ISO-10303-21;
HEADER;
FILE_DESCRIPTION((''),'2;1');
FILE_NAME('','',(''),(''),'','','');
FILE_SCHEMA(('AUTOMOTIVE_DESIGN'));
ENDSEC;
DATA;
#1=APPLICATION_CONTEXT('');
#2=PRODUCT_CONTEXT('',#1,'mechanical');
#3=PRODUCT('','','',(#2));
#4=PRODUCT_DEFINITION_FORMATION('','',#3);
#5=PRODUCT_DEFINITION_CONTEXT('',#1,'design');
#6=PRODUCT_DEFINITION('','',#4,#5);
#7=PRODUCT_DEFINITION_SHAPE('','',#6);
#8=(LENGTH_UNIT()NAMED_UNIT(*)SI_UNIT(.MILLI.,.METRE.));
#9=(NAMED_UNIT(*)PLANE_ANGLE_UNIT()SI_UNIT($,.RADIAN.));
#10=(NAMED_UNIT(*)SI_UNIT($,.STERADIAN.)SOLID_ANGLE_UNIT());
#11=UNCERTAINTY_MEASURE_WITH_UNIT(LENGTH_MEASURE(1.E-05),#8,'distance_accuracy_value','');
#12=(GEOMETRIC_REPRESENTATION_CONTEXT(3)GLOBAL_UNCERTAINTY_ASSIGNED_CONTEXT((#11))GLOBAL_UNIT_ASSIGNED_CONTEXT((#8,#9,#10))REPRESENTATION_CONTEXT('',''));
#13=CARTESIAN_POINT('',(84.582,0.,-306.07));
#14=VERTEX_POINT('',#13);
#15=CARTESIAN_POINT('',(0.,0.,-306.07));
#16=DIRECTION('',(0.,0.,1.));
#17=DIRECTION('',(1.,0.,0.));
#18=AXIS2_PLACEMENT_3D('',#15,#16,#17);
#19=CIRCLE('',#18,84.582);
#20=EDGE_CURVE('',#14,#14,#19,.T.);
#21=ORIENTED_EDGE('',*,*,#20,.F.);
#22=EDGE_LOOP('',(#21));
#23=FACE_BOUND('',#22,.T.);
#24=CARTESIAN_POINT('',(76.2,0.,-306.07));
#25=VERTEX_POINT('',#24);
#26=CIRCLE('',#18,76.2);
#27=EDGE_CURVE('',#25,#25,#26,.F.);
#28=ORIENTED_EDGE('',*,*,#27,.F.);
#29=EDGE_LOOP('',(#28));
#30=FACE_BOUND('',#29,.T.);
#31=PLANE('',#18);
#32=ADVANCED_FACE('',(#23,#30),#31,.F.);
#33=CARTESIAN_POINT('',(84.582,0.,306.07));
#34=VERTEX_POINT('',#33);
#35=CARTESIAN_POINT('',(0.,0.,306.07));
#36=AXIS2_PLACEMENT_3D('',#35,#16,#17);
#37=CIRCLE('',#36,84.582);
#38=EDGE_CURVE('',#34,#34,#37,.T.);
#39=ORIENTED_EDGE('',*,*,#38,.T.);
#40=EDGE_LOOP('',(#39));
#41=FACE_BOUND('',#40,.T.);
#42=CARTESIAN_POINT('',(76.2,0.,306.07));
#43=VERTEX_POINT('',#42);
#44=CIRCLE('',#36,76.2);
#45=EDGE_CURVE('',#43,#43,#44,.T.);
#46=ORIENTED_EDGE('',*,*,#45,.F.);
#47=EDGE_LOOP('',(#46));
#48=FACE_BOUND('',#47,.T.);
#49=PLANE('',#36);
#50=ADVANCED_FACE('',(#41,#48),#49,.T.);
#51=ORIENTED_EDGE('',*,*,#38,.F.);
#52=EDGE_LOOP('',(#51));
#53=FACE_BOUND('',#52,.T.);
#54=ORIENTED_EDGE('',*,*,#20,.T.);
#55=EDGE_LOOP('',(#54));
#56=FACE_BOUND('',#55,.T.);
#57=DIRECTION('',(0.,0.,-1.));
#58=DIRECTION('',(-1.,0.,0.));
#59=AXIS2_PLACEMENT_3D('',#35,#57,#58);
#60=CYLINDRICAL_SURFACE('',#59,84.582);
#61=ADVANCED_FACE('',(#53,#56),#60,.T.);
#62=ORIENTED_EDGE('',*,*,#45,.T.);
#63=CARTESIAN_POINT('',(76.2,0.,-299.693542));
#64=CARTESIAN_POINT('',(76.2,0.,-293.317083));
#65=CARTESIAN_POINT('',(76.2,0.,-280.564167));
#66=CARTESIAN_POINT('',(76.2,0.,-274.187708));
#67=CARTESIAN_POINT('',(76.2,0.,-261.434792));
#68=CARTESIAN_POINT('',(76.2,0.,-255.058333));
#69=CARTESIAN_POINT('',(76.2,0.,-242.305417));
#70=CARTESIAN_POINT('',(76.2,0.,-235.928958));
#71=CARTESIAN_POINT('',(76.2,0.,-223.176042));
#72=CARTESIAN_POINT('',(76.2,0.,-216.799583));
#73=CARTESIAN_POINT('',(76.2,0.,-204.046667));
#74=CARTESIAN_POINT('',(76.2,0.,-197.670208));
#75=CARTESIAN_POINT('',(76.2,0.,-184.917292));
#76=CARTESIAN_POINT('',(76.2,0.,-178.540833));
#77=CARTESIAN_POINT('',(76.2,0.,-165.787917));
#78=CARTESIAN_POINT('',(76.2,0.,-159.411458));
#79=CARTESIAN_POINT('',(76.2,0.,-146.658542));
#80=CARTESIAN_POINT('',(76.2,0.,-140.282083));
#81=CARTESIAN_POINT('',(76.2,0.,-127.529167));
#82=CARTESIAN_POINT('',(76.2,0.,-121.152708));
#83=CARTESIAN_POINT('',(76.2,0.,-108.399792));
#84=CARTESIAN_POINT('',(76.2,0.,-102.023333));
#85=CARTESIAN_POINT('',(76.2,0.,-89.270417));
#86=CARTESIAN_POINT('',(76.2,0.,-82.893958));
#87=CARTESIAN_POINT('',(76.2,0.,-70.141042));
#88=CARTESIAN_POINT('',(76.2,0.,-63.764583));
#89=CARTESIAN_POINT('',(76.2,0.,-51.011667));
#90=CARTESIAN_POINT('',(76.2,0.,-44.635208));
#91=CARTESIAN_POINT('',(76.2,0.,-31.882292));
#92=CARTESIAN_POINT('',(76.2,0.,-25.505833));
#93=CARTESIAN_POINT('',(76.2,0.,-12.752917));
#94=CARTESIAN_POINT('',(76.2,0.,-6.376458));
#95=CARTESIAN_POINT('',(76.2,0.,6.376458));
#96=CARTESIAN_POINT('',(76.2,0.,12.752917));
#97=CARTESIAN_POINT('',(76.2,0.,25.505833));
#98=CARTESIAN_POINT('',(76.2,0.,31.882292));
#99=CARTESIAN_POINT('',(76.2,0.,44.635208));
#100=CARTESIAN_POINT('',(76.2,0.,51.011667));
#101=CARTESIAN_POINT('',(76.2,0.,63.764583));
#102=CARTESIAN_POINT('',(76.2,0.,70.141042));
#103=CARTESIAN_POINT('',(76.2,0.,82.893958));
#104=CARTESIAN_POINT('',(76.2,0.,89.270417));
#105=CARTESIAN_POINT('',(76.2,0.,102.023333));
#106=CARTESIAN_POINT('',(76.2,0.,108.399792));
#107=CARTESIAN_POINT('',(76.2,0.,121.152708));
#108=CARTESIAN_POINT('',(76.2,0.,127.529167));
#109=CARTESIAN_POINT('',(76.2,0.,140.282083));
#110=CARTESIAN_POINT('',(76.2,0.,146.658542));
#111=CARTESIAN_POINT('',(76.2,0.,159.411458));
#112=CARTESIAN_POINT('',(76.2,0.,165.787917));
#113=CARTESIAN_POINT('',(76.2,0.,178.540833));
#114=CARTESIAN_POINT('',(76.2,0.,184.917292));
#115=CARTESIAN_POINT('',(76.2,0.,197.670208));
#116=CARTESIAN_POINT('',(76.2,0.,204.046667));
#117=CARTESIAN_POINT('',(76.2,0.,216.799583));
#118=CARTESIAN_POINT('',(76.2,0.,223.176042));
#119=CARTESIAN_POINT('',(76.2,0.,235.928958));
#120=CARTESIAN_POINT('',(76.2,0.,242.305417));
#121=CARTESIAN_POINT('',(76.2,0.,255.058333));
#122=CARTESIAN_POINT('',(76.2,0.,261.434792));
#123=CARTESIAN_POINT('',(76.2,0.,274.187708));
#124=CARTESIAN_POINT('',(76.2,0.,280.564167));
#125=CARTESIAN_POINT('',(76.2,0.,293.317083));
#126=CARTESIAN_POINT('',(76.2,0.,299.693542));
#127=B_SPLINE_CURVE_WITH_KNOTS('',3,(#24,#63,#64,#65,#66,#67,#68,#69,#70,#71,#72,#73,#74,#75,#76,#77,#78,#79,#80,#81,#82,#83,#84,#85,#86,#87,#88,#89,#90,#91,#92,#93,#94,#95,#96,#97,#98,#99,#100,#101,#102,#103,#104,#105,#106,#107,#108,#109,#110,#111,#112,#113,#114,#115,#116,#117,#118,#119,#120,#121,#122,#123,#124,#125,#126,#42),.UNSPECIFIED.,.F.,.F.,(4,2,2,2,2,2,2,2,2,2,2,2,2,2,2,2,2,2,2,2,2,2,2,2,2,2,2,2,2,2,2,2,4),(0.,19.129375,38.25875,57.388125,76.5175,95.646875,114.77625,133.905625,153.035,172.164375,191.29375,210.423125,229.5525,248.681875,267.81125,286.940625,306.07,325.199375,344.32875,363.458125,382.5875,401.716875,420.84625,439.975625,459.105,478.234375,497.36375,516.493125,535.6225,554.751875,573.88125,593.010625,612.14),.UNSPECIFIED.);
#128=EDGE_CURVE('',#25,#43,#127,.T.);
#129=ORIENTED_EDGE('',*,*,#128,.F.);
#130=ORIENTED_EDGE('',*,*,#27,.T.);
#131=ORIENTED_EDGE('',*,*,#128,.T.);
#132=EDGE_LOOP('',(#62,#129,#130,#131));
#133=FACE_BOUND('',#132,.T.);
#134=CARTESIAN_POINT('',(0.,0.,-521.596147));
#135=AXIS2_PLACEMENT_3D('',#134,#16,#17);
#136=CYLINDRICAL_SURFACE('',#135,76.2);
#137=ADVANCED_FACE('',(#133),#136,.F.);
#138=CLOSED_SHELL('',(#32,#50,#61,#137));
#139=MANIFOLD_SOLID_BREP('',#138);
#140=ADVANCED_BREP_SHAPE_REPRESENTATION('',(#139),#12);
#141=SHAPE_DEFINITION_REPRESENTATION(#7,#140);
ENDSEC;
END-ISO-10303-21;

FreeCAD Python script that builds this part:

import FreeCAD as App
import Part
import Sketcher

V = App.Vector
Q = App.Units.Quantity

doc = App.newDocument("Part")
body = doc.addObject("PartDesign::Body", "Body")

sketch1 = body.newObject("Sketcher::SketchObject", "Sketch")
sketch1.AttachmentSupport = (doc.getObject("XY_Plane"), [""])
sketch1.MapMode = "FlatFace"
sketch1.addGeometry(Part.Circle(V(0, 0, 0), V(0, 0, 1), 85), False)
sketch1.addConstraint([
    Sketcher.Constraint("Coincident", 0, 3, -1, 1),
    Sketcher.Constraint("Diameter", 0, Q("6.66 in")),
])
pad1 = body.newObject("PartDesign::Pad", "Pad")
pad1.Profile = sketch1
pad1.Length = Q("24.1 in")
pad1.Midplane = True

sketch2 = body.newObject("Sketcher::SketchObject", "Sketch001")
sketch2.AttachmentSupport = (doc.getObject("XY_Plane"), [""])
sketch2.MapMode = "FlatFace"
sketch2.AttachmentOffset = App.Placement(V(0, 0, 12.05 * 25.4), App.Rotation())
sketch2.addGeometry(Part.Circle(V(0, 0, 0), V(0, 0, 1), 76), False)
sketch2.addConstraint([
    Sketcher.Constraint("Coincident", 0, 3, -1, 1),
    Sketcher.Constraint("Diameter", 0, Q("6 in")),
])
pocket1 = body.newObject("PartDesign::Pocket", "Pocket")
pocket1.Profile = sketch2
pocket1.Length = Q("24.1 in")

doc.recompute()
